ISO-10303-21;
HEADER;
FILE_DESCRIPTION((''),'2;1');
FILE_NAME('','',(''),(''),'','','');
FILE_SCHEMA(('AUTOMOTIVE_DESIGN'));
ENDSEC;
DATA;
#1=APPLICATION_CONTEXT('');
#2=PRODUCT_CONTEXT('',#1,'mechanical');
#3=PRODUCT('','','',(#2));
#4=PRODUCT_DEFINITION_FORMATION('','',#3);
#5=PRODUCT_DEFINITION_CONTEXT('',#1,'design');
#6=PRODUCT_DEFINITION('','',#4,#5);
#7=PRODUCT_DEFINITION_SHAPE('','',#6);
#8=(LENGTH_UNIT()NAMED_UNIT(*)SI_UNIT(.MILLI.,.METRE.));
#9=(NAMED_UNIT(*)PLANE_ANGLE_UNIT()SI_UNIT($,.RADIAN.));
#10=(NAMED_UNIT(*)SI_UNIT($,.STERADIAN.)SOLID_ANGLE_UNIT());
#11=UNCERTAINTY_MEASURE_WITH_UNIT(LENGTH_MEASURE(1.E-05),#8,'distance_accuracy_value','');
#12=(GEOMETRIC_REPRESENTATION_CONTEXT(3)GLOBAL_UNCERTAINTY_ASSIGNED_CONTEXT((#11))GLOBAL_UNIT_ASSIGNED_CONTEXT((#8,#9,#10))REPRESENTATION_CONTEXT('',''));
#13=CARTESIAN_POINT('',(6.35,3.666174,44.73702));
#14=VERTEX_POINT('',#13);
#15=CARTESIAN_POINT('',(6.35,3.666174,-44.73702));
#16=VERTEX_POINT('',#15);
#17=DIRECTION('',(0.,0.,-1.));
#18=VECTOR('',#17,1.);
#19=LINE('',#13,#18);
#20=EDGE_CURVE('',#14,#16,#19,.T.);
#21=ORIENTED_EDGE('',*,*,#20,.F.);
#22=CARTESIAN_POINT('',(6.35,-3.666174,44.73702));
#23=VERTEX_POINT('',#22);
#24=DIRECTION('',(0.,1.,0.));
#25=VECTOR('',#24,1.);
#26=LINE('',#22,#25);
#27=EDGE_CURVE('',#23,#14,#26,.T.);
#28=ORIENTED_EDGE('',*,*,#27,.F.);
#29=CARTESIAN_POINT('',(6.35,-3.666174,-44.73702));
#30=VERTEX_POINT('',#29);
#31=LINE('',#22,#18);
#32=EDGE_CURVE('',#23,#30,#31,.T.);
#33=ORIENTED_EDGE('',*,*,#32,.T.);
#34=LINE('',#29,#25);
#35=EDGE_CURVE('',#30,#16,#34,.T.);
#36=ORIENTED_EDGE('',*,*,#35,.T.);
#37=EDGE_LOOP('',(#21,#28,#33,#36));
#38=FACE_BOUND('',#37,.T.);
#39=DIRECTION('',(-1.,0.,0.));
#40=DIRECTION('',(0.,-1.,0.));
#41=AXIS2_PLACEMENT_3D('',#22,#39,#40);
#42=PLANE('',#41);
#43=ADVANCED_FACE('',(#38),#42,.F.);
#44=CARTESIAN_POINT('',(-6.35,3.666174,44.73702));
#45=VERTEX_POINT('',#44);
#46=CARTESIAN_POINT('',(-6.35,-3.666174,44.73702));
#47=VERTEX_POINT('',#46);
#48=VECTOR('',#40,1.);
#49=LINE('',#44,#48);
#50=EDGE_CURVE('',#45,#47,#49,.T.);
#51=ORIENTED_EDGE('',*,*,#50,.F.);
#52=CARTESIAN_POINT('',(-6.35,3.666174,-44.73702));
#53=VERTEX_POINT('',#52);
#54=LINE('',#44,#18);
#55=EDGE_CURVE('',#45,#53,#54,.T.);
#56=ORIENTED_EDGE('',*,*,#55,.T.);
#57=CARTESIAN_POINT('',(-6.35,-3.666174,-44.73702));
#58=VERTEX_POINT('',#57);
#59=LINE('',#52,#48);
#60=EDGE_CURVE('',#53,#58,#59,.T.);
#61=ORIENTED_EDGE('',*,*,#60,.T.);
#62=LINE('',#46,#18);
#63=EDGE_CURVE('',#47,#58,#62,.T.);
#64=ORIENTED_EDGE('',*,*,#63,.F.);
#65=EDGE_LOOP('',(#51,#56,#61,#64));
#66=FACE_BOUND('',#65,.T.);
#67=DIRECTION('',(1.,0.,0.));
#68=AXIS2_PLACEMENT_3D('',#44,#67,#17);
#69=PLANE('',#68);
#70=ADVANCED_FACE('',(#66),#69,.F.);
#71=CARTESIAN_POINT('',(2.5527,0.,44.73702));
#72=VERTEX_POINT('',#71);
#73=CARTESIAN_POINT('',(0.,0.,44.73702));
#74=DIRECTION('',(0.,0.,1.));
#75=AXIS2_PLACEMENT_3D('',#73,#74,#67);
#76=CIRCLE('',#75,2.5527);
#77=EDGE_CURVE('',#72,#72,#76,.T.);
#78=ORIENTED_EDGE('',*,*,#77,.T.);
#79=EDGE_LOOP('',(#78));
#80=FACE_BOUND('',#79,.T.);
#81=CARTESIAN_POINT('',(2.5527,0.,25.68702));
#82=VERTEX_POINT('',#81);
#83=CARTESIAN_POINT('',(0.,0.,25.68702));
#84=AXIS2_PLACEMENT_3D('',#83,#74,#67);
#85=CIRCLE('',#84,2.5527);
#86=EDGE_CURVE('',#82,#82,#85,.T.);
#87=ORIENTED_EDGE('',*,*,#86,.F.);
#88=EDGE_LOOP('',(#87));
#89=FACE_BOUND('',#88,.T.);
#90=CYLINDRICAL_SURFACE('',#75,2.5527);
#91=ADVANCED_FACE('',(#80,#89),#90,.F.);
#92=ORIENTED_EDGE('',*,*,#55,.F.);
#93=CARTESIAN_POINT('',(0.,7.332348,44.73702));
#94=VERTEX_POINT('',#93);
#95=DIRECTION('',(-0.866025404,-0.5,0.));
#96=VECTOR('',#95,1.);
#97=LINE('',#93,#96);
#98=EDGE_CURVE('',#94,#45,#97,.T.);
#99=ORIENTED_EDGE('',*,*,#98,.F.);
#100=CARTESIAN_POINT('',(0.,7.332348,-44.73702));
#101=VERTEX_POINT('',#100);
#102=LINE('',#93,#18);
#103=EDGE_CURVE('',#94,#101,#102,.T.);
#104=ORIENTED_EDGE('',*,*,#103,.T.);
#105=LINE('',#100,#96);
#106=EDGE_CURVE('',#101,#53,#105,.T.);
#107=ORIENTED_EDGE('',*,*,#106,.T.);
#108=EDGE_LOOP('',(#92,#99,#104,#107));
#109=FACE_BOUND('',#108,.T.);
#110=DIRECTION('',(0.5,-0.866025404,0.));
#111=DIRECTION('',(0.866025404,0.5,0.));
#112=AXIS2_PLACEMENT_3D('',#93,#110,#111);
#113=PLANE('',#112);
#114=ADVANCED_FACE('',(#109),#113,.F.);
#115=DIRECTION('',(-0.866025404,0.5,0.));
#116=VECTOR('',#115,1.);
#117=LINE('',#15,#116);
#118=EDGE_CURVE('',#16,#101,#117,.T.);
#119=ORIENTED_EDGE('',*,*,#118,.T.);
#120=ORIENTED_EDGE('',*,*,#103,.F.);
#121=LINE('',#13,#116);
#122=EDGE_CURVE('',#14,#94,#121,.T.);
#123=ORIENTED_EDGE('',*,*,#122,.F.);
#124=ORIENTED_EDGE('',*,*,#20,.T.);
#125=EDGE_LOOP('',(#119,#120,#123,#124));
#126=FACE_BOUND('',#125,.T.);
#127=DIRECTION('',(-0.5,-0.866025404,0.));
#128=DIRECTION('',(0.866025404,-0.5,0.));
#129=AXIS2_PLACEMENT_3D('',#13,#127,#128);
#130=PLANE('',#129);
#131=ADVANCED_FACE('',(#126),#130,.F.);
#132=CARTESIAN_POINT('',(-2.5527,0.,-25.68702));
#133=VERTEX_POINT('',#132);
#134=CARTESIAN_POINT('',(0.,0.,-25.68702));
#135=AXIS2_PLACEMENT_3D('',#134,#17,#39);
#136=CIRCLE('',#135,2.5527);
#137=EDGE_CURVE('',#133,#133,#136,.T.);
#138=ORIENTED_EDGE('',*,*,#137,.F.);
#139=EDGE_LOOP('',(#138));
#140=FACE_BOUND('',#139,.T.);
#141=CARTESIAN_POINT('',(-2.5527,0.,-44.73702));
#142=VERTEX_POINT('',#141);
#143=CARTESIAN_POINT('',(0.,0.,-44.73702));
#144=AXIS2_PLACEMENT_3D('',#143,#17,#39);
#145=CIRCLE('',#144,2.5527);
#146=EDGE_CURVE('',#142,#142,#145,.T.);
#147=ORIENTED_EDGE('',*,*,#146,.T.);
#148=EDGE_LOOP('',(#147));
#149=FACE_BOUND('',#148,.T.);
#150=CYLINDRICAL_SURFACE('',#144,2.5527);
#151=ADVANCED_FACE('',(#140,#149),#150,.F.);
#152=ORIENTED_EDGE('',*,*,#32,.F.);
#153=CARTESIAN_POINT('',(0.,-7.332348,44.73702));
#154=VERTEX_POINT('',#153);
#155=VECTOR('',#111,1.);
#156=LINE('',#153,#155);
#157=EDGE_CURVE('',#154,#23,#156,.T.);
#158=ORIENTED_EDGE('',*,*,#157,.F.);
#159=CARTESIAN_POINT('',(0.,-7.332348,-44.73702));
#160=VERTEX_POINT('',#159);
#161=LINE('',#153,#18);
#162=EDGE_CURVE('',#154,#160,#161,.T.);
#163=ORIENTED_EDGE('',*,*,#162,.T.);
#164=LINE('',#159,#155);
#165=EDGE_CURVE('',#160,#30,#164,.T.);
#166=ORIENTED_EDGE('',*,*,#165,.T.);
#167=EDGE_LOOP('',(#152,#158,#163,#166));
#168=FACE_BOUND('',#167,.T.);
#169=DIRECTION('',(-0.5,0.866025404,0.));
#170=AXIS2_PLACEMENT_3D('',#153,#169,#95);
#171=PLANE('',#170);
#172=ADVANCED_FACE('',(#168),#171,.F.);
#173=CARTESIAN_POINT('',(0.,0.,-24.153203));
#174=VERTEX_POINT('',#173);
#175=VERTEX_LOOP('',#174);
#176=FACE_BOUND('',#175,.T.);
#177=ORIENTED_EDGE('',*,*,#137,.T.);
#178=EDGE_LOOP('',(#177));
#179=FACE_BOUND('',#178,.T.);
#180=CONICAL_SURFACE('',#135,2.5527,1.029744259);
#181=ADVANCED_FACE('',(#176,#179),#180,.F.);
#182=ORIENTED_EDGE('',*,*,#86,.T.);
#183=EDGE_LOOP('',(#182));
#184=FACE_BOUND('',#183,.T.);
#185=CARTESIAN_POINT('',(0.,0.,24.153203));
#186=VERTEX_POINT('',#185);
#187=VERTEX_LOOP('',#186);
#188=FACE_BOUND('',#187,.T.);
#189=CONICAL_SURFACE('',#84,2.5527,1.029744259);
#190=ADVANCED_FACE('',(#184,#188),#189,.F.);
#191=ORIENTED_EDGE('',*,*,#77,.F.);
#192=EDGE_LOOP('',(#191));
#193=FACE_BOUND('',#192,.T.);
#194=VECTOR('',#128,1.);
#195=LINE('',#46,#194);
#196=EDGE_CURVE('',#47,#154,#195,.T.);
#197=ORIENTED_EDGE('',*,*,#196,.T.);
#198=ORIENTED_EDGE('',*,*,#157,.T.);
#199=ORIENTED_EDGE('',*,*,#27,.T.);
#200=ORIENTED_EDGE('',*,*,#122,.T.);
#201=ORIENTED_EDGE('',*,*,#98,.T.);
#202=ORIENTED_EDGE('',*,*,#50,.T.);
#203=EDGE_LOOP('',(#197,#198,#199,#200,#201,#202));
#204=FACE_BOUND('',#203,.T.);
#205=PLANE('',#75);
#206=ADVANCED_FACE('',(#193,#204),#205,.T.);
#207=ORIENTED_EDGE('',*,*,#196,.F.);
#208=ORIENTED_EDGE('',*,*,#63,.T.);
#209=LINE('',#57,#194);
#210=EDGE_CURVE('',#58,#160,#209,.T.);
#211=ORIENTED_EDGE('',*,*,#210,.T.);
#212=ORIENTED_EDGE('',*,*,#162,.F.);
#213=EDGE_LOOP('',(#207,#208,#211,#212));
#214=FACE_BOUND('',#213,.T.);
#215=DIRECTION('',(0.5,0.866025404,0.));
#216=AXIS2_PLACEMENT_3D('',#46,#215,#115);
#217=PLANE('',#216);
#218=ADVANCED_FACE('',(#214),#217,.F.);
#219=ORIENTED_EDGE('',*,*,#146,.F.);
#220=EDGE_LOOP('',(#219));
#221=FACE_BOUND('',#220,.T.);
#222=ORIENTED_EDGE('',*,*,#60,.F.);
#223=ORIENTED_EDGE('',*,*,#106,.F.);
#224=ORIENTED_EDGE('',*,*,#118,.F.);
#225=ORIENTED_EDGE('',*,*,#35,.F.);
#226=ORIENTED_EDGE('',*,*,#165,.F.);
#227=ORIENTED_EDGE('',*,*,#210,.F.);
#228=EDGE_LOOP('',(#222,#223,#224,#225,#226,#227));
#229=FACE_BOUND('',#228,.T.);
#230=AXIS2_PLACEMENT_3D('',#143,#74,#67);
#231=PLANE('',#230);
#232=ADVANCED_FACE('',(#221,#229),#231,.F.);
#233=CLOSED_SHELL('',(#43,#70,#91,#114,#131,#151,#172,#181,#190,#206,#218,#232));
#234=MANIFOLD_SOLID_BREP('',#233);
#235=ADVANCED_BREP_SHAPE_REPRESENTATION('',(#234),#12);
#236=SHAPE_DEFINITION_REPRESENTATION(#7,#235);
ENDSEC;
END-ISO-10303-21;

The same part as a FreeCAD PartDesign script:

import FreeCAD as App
import Part
import Sketcher
from FreeCAD import Vector
Q = App.Units.Quantity

doc = App.newDocument("Part")
body = doc.addObject("PartDesign::Body", "Body")

sketch1 = doc.addObject("Sketcher::SketchObject", "Sketch")
body.addObject(sketch1)
sketch1.AttachmentSupport = (doc.XY_Plane, [""])
sketch1.MapMode = "FlatFace"
sketch1.addGeometry(Part.LineSegment(Vector(0, 7, 0), Vector(-6, 4, 0)), False)
sketch1.addGeometry(Part.LineSegment(Vector(-6, 4, 0), Vector(-6, -4, 0)), False)
sketch1.addGeometry(Part.LineSegment(Vector(-6, -4, 0), Vector(0, -7, 0)), False)
sketch1.addGeometry(Part.LineSegment(Vector(0, -7, 0), Vector(6, -4, 0)), False)
sketch1.addGeometry(Part.LineSegment(Vector(6, -4, 0), Vector(6, 4, 0)), False)
sketch1.addGeometry(Part.LineSegment(Vector(6, 4, 0), Vector(0, 7, 0)), False)
sketch1.addConstraint(Sketcher.Constraint("Coincident", 0, 2, 1, 1))
sketch1.addConstraint(Sketcher.Constraint("Coincident", 1, 2, 2, 1))
sketch1.addConstraint(Sketcher.Constraint("Coincident", 2, 2, 3, 1))
sketch1.addConstraint(Sketcher.Constraint("Coincident", 3, 2, 4, 1))
sketch1.addConstraint(Sketcher.Constraint("Coincident", 4, 2, 5, 1))
sketch1.addConstraint(Sketcher.Constraint("Coincident", 5, 2, 0, 1))
sketch1.addConstraint(Sketcher.Constraint("Vertical", 1))
sketch1.addConstraint(Sketcher.Constraint("Vertical", 4))
sketch1.addConstraint(Sketcher.Constraint("Symmetric", 0, 2, 3, 2, -1, 1))
sketch1.addConstraint(Sketcher.Constraint("Symmetric", 2, 2, 5, 2, -1, 1))
sketch1.addConstraint(Sketcher.Constraint("PointOnObject", 2, 2, -2))
sketch1.addConstraint(Sketcher.Constraint("Parallel", 2, 5))
sketch1.addConstraint(Sketcher.Constraint("Horizontal", 1, 2, 3, 2))
sketch1.addConstraint(Sketcher.Constraint("Angle", 0, Q("-150 deg")))
sketch1.addConstraint(Sketcher.Constraint("DistanceX", 1, 2, 3, 2, Q("0.5 in")))
sketch1.addConstraint(Sketcher.Constraint("DistanceY", 1, 2, 1, 1, 7.332348))
pad1 = doc.addObject("PartDesign::Pad", "Pad")
body.addObject(pad1)
pad1.Profile = sketch1
pad1.Type = "TwoLengths"
pad1.Length = Q("1.7613 in")
pad1.Length2 = Q("1.7613 in")

sketch2 = doc.addObject("Sketcher::SketchObject", "Sketch001")
body.addObject(sketch2)
sketch2.AttachmentSupport = (doc.XY_Plane, [""])
sketch2.MapMode = "FlatFace"
sketch2.AttachmentOffset = App.Placement(Vector(0, 0, -1.7613 * 25.4), App.Rotation())
sketch2.addGeometry(Part.Circle(Vector(0, 0, 0), Vector(0, 0, 1), 2.6), False)
sketch2.addConstraint(Sketcher.Constraint("Coincident", 0, 3, -1, 1))
sketch2.addConstraint(Sketcher.Constraint("Diameter", 0, Q("0.201 in")))
doc.recompute()
hole = doc.addObject("PartDesign::Hole", "Hole")
body.addObject(hole)
hole.Profile = sketch2
hole.ThreadType = "None"
hole.Diameter = Q("0.201 in")
hole.DepthType = "Dimension"
hole.Depth = Q("0.75 in")
hole.DrillPoint = "Angled"
hole.DrillPointAngle = 118
hole.Reversed = True

sketch3 = doc.addObject("Sketcher::SketchObject", "Sketch002")
body.addObject(sketch3)
sketch3.AttachmentSupport = (doc.XY_Plane, [""])
sketch3.MapMode = "FlatFace"
sketch3.AttachmentOffset = App.Placement(Vector(0, 0, 1.7613 * 25.4), App.Rotation())
sketch3.addGeometry(Part.Circle(Vector(0, 0, 0), Vector(0, 0, 1), 2.6), False)
sketch3.addConstraint(Sketcher.Constraint("Coincident", 0, 3, -1, 1))
sketch3.addConstraint(Sketcher.Constraint("Diameter", 0, Q("0.201 in")))
doc.recompute()
hole2 = doc.addObject("PartDesign::Hole", "Hole001")
body.addObject(hole2)
hole2.Profile = sketch3
hole2.ThreadType = "None"
hole2.Diameter = Q("0.201 in")
hole2.DepthType = "Dimension"
hole2.Depth = Q("0.75 in")
hole2.DrillPoint = "Angled"
hole2.DrillPointAngle = 118

doc.recompute()
